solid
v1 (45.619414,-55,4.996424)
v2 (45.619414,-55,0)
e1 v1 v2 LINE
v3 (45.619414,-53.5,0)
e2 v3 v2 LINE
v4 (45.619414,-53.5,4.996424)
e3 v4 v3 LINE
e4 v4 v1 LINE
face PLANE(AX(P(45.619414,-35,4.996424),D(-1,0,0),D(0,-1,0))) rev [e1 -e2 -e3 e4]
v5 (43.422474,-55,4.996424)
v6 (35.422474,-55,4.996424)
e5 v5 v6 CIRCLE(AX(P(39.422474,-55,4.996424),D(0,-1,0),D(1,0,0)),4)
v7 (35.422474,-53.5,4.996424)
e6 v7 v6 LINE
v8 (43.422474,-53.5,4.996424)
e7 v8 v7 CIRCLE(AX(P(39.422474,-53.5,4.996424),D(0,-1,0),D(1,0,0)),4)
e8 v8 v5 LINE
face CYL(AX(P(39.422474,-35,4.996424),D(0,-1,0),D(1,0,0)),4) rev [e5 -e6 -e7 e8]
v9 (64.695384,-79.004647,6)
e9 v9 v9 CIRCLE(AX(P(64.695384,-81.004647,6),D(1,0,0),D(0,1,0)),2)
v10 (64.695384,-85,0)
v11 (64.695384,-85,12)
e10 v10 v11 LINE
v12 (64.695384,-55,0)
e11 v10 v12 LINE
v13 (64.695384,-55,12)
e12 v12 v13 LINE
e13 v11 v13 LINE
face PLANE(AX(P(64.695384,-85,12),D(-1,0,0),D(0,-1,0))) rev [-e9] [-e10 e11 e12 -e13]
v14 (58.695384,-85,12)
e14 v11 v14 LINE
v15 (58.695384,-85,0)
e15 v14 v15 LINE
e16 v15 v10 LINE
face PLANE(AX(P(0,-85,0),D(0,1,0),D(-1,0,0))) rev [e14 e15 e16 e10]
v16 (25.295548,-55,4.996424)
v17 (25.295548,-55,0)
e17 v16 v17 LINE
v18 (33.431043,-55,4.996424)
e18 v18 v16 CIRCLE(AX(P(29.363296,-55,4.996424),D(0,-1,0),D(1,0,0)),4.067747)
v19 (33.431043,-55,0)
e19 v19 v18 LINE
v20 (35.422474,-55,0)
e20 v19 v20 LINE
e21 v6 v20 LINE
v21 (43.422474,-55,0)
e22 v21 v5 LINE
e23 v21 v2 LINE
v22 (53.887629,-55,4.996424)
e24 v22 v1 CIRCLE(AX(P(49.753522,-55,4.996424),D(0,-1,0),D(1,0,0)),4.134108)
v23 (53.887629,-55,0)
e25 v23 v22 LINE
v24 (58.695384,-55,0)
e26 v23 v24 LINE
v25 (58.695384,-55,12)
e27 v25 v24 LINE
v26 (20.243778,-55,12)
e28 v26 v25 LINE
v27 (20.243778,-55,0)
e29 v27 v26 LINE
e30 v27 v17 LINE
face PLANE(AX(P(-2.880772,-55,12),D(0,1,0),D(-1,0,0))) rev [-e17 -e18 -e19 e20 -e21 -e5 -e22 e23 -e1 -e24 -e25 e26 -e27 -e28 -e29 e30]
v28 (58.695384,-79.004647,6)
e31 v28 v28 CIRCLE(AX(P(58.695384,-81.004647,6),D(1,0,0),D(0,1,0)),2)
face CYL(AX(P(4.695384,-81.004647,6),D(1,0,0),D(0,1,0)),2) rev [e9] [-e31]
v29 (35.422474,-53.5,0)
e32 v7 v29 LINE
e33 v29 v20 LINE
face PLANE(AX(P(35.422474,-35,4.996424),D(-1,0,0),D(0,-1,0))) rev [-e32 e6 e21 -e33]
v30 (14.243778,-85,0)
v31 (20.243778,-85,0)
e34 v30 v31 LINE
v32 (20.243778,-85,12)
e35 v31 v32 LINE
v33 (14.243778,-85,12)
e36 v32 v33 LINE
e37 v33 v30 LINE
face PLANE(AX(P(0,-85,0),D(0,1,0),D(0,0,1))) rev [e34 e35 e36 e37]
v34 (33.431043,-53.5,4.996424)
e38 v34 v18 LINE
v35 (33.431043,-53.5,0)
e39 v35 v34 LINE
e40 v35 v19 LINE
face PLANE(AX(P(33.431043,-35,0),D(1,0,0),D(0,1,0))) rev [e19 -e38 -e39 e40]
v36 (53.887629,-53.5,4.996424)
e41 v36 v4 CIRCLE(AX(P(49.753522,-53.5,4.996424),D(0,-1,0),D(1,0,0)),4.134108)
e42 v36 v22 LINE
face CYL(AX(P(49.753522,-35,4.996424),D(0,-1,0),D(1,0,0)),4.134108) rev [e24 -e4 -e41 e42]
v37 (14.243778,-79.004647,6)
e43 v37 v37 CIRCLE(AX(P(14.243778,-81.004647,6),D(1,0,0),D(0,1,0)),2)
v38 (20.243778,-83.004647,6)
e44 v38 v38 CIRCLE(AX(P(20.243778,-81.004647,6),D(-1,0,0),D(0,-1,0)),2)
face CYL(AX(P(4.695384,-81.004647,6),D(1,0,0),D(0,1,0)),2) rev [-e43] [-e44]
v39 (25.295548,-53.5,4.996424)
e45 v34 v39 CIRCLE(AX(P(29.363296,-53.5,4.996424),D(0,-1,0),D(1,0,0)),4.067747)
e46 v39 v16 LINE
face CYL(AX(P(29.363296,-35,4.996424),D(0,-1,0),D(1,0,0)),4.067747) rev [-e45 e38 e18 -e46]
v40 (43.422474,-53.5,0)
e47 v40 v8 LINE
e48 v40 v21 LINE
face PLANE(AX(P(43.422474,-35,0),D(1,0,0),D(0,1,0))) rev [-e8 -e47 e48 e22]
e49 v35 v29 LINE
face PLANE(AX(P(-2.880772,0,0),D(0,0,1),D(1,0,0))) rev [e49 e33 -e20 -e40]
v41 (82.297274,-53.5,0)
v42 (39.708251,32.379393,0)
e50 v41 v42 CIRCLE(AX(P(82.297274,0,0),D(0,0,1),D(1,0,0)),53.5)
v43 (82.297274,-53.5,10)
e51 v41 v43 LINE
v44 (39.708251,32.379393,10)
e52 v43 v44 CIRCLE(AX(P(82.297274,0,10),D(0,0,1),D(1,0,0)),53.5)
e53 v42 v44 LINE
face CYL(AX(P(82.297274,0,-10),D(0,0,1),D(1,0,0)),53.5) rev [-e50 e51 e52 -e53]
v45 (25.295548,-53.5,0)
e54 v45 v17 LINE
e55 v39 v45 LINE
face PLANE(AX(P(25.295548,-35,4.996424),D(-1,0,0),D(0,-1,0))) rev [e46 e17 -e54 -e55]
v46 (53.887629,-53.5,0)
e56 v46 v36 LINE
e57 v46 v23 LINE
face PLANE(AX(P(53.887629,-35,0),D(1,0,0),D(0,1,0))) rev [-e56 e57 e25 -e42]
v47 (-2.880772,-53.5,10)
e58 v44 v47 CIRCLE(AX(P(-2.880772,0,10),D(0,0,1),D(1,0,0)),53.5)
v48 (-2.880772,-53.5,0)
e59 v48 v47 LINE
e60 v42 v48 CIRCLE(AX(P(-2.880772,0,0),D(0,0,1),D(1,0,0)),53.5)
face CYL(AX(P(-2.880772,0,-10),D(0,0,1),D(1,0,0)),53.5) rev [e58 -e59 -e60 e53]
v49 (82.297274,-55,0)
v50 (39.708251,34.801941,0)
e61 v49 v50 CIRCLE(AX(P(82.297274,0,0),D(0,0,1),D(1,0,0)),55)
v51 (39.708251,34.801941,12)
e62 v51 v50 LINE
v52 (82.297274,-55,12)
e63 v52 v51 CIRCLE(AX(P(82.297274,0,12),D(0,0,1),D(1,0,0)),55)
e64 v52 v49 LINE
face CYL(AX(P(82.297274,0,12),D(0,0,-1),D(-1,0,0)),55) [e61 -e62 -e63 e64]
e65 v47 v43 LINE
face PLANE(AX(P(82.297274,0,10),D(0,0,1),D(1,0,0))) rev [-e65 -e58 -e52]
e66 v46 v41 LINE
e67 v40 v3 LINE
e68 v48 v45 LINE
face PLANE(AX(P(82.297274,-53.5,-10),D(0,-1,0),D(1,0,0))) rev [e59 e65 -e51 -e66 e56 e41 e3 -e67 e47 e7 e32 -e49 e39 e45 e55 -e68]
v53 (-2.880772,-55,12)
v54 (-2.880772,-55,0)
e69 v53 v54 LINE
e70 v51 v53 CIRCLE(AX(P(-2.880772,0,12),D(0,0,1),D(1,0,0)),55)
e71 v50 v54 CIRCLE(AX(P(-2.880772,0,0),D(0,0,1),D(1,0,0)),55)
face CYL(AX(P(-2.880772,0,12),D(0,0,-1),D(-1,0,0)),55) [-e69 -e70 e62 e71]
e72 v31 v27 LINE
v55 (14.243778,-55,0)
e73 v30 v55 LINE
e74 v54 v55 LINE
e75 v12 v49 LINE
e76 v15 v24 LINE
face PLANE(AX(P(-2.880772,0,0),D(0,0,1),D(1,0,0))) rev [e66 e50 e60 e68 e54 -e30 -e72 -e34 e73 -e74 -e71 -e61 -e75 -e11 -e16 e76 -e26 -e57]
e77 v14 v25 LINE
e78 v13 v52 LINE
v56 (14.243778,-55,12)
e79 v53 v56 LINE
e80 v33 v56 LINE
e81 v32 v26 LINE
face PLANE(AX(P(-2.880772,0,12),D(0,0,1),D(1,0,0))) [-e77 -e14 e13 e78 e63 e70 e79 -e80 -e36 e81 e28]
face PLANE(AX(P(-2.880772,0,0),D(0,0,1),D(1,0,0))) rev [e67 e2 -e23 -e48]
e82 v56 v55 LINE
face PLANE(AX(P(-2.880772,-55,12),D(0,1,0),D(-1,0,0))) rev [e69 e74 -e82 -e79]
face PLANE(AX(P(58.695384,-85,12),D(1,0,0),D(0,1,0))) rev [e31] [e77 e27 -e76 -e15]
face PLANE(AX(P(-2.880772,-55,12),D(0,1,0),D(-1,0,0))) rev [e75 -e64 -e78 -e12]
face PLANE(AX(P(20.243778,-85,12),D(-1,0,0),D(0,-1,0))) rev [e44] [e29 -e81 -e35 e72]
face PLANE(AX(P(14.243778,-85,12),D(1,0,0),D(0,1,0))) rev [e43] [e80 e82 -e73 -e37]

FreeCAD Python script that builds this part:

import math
import FreeCAD as App
import Part
import Sketcher

V = App.Vector

doc = App.newDocument("Part")
body = doc.addObject("PartDesign::Body", "Body")

# Sketch on XY plane
sketch1 = doc.addObject("Sketcher::SketchObject", "Sketch")
body.addObject(sketch1)
sketch1.AttachmentSupport = (doc.XY_Plane, [""])
sketch1.MapMode = "FlatFace"
sketch1.addGeometry([
    Part.LineSegment(V(-3, -55, 0), V(82, -55, 0)),
    Part.ArcOfCircle(Part.Circle(V(82, 0, 0), V(0, 0, 1), 55), math.radians(-90), math.radians(141)),
    Part.ArcOfCircle(Part.Circle(V(-3, 0, 0), V(0, 0, 1), 55), math.radians(39), math.radians(270)),
], False)
sketch1.addConstraint([
    Sketcher.Constraint("Tangent", 0, 2, 1, 1),
    Sketcher.Constraint("Coincident", 1, 2, 2, 1),
    Sketcher.Constraint("Tangent", 2, 2, 0, 1),
    Sketcher.Constraint("Horizontal", 0),
    Sketcher.Constraint("Equal", 1, 2),
    Sketcher.Constraint("PointOnObject", 1, 3, -1),
    Sketcher.Constraint("Radius", 1, 55.0),
    Sketcher.Constraint("DistanceX", 0, 1, 0, 2, 85.178047),
    Sketcher.Constraint("DistanceX", -1, 1, 1, 2, 39.708251),
])
pad1 = doc.addObject("PartDesign::Pad", "Pad")
body.addObject(pad1)
pad1.Profile = sketch1
pad1.Length = 12

# Sketch on XY plane
sketch2 = doc.addObject("Sketcher::SketchObject", "Sketch001")
body.addObject(sketch2)
sketch2.AttachmentSupport = (doc.XY_Plane, [""])
sketch2.MapMode = "FlatFace"
sketch2.addGeometry([
    Part.LineSegment(V(-3, -54, 0), V(82, -54, 0)),
    Part.ArcOfCircle(Part.Circle(V(82, 0, 0), V(0, 0, 1), 54), math.radians(-90), math.radians(143)),
    Part.ArcOfCircle(Part.Circle(V(-3, 0, 0), V(0, 0, 1), 54), math.radians(37), math.radians(270)),
], False)
sketch2.addConstraint([
    Sketcher.Constraint("Tangent", 0, 2, 1, 1),
    Sketcher.Constraint("Coincident", 1, 2, 2, 1),
    Sketcher.Constraint("Tangent", 2, 2, 0, 1),
    Sketcher.Constraint("Horizontal", 0),
    Sketcher.Constraint("Equal", 1, 2),
    Sketcher.Constraint("PointOnObject", 1, 3, -1),
    Sketcher.Constraint("Radius", 1, 53.5),
    Sketcher.Constraint("DistanceX", 0, 1, 0, 2, 85.178047),
    Sketcher.Constraint("DistanceX", -1, 1, 1, 2, 39.708251),
])
pocket1 = doc.addObject("PartDesign::Pocket", "Pocket")
body.addObject(pocket1)
pocket1.Profile = sketch2
pocket1.Length = 20
pocket1.Midplane = True

# Sketch on XZ plane
sketch3 = doc.addObject("Sketcher::SketchObject", "Sketch002")
body.addObject(sketch3)
sketch3.AttachmentSupport = (doc.XZ_Plane, [""])
sketch3.MapMode = "FlatFace"
sketch3.AttachmentOffset = App.Placement(V(0, 0, 55), App.Rotation())
sketch3.addGeometry([
    Part.LineSegment(V(25.3, 5, 0), V(25.3, 0, 0)),  # 0
    Part.LineSegment(V(25.3, 0, 0), V(33.4, 0, 0)),  # 1
    Part.LineSegment(V(33.4, 0, 0), V(33.4, 5, 0)),  # 2
    Part.ArcOfCircle(Part.Circle(V(29.4, 5, 0), V(0, 0, 1), 4.1), math.radians(0), math.radians(180)),  # 3
    Part.LineSegment(V(35.4, 5, 0), V(35.4, 0, 0)),  # 4
    Part.LineSegment(V(35.4, 0, 0), V(43.4, 0, 0)),  # 5
    Part.LineSegment(V(43.4, 0, 0), V(43.4, 5, 0)),  # 6
    Part.ArcOfCircle(Part.Circle(V(39.4, 5, 0), V(0, 0, 1), 4), math.radians(0), math.radians(180)),  # 7
    Part.LineSegment(V(45.6, 5, 0), V(45.6, 0, 0)),  # 8
    Part.LineSegment(V(45.6, 0, 0), V(53.9, 0, 0)),  # 9
    Part.LineSegment(V(53.9, 0, 0), V(53.9, 5, 0)),  # 10
    Part.ArcOfCircle(Part.Circle(V(49.8, 5, 0), V(0, 0, 1), 4.1), math.radians(0), math.radians(180)),  # 11
], False)
sketch3.addConstraint([
    Sketcher.Constraint("Coincident", 0, 2, 1, 1),
    Sketcher.Constraint("Coincident", 1, 2, 2, 1),
    Sketcher.Constraint("Tangent", 2, 2, 3, 1),
    Sketcher.Constraint("Tangent", 3, 2, 0, 1),
    Sketcher.Constraint("Coincident", 4, 2, 5, 1),
    Sketcher.Constraint("Coincident", 5, 2, 6, 1),
    Sketcher.Constraint("Tangent", 6, 2, 7, 1),
    Sketcher.Constraint("Tangent", 7, 2, 4, 1),
    Sketcher.Constraint("Coincident", 8, 2, 9, 1),
    Sketcher.Constraint("Coincident", 9, 2, 10, 1),
    Sketcher.Constraint("Tangent", 10, 2, 11, 1),
    Sketcher.Constraint("Tangent", 11, 2, 8, 1),
    Sketcher.Constraint("Vertical", 0),
    Sketcher.Constraint("Horizontal", 1),
    Sketcher.Constraint("Vertical", 2),
    Sketcher.Constraint("Vertical", 4),
    Sketcher.Constraint("Horizontal", 5),
    Sketcher.Constraint("Vertical", 6),
    Sketcher.Constraint("Vertical", 8),
    Sketcher.Constraint("Horizontal", 9),
    Sketcher.Constraint("Vertical", 10),
    Sketcher.Constraint("PointOnObject", 0, 2, -1),
    Sketcher.Constraint("PointOnObject", 4, 2, -1),
    Sketcher.Constraint("PointOnObject", 8, 2, -1),
    Sketcher.Constraint("Horizontal", 3, 3, 7, 3),
    Sketcher.Constraint("Horizontal", 7, 3, 11, 3),
    Sketcher.Constraint("Radius", 7, 4.0),
    Sketcher.Constraint("Radius", 3, 4.067747),
    Sketcher.Constraint("Radius", 11, 4.134108),
    Sketcher.Constraint("DistanceY", 0, 2, 0, 1, 4.996424),
    Sketcher.Constraint("DistanceX", -1, 1, 11, 3, 49.753522),
    Sketcher.Constraint("DistanceX", -1, 1, 0, 2, 25.295548),
    Sketcher.Constraint("DistanceX", 3, 3, 7, 3, 10.059178),
])
pocket2 = doc.addObject("PartDesign::Pocket", "Pocket001")
body.addObject(pocket2)
pocket2.Profile = sketch3
pocket2.Length = 20

# Sketch on XZ plane
sketch4 = doc.addObject("Sketcher::SketchObject", "Sketch003")
body.addObject(sketch4)
sketch4.AttachmentSupport = (doc.XZ_Plane, [""])
sketch4.MapMode = "FlatFace"
sketch4.AttachmentOffset = App.Placement(V(0, 0, 55), App.Rotation())
sketch4.addGeometry([
    Part.LineSegment(V(20, 0, 0), V(20, 12, 0)),  # 0
    Part.LineSegment(V(20, 12, 0), V(14, 12, 0)),  # 1
    Part.LineSegment(V(14, 12, 0), V(14, 0, 0)),  # 2
    Part.LineSegment(V(14, 0, 0), V(20, 0, 0)),  # 3
    Part.LineSegment(V(65, 0, 0), V(65, 12, 0)),  # 4
    Part.LineSegment(V(65, 12, 0), V(59, 12, 0)),  # 5
    Part.LineSegment(V(59, 12, 0), V(59, 0, 0)),  # 6
    Part.LineSegment(V(59, 0, 0), V(65, 0, 0)),  # 7
], False)
sketch4.addConstraint([
    Sketcher.Constraint("Coincident", 0, 2, 1, 1),
    Sketcher.Constraint("Coincident", 1, 2, 2, 1),
    Sketcher.Constraint("Coincident", 2, 2, 3, 1),
    Sketcher.Constraint("Coincident", 3, 2, 0, 1),
    Sketcher.Constraint("Coincident", 4, 2, 5, 1),
    Sketcher.Constraint("Coincident", 5, 2, 6, 1),
    Sketcher.Constraint("Coincident", 6, 2, 7, 1),
    Sketcher.Constraint("Coincident", 7, 2, 4, 1),
    Sketcher.Constraint("Vertical", 0),
    Sketcher.Constraint("Horizontal", 1),
    Sketcher.Constraint("Vertical", 2),
    Sketcher.Constraint("Horizontal", 3),
    Sketcher.Constraint("Vertical", 4),
    Sketcher.Constraint("Horizontal", 5),
    Sketcher.Constraint("Vertical", 6),
    Sketcher.Constraint("Horizontal", 7),
    Sketcher.Constraint("PointOnObject", 2, 2, -1),
    Sketcher.Constraint("PointOnObject", 6, 2, -1),
    Sketcher.Constraint("Horizontal", 1, 2, 4, 2),
    Sketcher.Constraint("Equal", 3, 5),
    Sketcher.Constraint("DistanceX", 1, 2, 1, 1, 6.0),
    Sketcher.Constraint("DistanceY", 0, 1, 0, 2, 12.0),
    Sketcher.Constraint("DistanceX", -1, 1, 0, 2, 20.243778),
    Sketcher.Constraint("DistanceX", -1, 1, 4, 2, 64.695384),
])
pad2 = doc.addObject("PartDesign::Pad", "Pad001")
body.addObject(pad2)
pad2.Profile = sketch4
pad2.Length = 30

# Sketch on YZ plane
sketch5 = doc.addObject("Sketcher::SketchObject", "Sketch004")
body.addObject(sketch5)
sketch5.AttachmentSupport = (doc.YZ_Plane, [""])
sketch5.MapMode = "FlatFace"
sketch5.AttachmentOffset = App.Placement(V(0, 0, 64.695384), App.Rotation())
sketch5.addGeometry(Part.Circle(V(-81, 6, 0), V(0, 0, 1), 2), False)
sketch5.addConstraint([
    Sketcher.Constraint("Diameter", 0, 4.0),
    Sketcher.Constraint("DistanceY", -1, 1, 0, 3, 6.0),
    Sketcher.Constraint("DistanceX", 0, 3, -1, 1, 81.004647),
])
pocket3 = doc.addObject("PartDesign::Pocket", "Pocket002")
body.addObject(pocket3)
pocket3.Profile = sketch5
pocket3.Length = 60

doc.recompute()
